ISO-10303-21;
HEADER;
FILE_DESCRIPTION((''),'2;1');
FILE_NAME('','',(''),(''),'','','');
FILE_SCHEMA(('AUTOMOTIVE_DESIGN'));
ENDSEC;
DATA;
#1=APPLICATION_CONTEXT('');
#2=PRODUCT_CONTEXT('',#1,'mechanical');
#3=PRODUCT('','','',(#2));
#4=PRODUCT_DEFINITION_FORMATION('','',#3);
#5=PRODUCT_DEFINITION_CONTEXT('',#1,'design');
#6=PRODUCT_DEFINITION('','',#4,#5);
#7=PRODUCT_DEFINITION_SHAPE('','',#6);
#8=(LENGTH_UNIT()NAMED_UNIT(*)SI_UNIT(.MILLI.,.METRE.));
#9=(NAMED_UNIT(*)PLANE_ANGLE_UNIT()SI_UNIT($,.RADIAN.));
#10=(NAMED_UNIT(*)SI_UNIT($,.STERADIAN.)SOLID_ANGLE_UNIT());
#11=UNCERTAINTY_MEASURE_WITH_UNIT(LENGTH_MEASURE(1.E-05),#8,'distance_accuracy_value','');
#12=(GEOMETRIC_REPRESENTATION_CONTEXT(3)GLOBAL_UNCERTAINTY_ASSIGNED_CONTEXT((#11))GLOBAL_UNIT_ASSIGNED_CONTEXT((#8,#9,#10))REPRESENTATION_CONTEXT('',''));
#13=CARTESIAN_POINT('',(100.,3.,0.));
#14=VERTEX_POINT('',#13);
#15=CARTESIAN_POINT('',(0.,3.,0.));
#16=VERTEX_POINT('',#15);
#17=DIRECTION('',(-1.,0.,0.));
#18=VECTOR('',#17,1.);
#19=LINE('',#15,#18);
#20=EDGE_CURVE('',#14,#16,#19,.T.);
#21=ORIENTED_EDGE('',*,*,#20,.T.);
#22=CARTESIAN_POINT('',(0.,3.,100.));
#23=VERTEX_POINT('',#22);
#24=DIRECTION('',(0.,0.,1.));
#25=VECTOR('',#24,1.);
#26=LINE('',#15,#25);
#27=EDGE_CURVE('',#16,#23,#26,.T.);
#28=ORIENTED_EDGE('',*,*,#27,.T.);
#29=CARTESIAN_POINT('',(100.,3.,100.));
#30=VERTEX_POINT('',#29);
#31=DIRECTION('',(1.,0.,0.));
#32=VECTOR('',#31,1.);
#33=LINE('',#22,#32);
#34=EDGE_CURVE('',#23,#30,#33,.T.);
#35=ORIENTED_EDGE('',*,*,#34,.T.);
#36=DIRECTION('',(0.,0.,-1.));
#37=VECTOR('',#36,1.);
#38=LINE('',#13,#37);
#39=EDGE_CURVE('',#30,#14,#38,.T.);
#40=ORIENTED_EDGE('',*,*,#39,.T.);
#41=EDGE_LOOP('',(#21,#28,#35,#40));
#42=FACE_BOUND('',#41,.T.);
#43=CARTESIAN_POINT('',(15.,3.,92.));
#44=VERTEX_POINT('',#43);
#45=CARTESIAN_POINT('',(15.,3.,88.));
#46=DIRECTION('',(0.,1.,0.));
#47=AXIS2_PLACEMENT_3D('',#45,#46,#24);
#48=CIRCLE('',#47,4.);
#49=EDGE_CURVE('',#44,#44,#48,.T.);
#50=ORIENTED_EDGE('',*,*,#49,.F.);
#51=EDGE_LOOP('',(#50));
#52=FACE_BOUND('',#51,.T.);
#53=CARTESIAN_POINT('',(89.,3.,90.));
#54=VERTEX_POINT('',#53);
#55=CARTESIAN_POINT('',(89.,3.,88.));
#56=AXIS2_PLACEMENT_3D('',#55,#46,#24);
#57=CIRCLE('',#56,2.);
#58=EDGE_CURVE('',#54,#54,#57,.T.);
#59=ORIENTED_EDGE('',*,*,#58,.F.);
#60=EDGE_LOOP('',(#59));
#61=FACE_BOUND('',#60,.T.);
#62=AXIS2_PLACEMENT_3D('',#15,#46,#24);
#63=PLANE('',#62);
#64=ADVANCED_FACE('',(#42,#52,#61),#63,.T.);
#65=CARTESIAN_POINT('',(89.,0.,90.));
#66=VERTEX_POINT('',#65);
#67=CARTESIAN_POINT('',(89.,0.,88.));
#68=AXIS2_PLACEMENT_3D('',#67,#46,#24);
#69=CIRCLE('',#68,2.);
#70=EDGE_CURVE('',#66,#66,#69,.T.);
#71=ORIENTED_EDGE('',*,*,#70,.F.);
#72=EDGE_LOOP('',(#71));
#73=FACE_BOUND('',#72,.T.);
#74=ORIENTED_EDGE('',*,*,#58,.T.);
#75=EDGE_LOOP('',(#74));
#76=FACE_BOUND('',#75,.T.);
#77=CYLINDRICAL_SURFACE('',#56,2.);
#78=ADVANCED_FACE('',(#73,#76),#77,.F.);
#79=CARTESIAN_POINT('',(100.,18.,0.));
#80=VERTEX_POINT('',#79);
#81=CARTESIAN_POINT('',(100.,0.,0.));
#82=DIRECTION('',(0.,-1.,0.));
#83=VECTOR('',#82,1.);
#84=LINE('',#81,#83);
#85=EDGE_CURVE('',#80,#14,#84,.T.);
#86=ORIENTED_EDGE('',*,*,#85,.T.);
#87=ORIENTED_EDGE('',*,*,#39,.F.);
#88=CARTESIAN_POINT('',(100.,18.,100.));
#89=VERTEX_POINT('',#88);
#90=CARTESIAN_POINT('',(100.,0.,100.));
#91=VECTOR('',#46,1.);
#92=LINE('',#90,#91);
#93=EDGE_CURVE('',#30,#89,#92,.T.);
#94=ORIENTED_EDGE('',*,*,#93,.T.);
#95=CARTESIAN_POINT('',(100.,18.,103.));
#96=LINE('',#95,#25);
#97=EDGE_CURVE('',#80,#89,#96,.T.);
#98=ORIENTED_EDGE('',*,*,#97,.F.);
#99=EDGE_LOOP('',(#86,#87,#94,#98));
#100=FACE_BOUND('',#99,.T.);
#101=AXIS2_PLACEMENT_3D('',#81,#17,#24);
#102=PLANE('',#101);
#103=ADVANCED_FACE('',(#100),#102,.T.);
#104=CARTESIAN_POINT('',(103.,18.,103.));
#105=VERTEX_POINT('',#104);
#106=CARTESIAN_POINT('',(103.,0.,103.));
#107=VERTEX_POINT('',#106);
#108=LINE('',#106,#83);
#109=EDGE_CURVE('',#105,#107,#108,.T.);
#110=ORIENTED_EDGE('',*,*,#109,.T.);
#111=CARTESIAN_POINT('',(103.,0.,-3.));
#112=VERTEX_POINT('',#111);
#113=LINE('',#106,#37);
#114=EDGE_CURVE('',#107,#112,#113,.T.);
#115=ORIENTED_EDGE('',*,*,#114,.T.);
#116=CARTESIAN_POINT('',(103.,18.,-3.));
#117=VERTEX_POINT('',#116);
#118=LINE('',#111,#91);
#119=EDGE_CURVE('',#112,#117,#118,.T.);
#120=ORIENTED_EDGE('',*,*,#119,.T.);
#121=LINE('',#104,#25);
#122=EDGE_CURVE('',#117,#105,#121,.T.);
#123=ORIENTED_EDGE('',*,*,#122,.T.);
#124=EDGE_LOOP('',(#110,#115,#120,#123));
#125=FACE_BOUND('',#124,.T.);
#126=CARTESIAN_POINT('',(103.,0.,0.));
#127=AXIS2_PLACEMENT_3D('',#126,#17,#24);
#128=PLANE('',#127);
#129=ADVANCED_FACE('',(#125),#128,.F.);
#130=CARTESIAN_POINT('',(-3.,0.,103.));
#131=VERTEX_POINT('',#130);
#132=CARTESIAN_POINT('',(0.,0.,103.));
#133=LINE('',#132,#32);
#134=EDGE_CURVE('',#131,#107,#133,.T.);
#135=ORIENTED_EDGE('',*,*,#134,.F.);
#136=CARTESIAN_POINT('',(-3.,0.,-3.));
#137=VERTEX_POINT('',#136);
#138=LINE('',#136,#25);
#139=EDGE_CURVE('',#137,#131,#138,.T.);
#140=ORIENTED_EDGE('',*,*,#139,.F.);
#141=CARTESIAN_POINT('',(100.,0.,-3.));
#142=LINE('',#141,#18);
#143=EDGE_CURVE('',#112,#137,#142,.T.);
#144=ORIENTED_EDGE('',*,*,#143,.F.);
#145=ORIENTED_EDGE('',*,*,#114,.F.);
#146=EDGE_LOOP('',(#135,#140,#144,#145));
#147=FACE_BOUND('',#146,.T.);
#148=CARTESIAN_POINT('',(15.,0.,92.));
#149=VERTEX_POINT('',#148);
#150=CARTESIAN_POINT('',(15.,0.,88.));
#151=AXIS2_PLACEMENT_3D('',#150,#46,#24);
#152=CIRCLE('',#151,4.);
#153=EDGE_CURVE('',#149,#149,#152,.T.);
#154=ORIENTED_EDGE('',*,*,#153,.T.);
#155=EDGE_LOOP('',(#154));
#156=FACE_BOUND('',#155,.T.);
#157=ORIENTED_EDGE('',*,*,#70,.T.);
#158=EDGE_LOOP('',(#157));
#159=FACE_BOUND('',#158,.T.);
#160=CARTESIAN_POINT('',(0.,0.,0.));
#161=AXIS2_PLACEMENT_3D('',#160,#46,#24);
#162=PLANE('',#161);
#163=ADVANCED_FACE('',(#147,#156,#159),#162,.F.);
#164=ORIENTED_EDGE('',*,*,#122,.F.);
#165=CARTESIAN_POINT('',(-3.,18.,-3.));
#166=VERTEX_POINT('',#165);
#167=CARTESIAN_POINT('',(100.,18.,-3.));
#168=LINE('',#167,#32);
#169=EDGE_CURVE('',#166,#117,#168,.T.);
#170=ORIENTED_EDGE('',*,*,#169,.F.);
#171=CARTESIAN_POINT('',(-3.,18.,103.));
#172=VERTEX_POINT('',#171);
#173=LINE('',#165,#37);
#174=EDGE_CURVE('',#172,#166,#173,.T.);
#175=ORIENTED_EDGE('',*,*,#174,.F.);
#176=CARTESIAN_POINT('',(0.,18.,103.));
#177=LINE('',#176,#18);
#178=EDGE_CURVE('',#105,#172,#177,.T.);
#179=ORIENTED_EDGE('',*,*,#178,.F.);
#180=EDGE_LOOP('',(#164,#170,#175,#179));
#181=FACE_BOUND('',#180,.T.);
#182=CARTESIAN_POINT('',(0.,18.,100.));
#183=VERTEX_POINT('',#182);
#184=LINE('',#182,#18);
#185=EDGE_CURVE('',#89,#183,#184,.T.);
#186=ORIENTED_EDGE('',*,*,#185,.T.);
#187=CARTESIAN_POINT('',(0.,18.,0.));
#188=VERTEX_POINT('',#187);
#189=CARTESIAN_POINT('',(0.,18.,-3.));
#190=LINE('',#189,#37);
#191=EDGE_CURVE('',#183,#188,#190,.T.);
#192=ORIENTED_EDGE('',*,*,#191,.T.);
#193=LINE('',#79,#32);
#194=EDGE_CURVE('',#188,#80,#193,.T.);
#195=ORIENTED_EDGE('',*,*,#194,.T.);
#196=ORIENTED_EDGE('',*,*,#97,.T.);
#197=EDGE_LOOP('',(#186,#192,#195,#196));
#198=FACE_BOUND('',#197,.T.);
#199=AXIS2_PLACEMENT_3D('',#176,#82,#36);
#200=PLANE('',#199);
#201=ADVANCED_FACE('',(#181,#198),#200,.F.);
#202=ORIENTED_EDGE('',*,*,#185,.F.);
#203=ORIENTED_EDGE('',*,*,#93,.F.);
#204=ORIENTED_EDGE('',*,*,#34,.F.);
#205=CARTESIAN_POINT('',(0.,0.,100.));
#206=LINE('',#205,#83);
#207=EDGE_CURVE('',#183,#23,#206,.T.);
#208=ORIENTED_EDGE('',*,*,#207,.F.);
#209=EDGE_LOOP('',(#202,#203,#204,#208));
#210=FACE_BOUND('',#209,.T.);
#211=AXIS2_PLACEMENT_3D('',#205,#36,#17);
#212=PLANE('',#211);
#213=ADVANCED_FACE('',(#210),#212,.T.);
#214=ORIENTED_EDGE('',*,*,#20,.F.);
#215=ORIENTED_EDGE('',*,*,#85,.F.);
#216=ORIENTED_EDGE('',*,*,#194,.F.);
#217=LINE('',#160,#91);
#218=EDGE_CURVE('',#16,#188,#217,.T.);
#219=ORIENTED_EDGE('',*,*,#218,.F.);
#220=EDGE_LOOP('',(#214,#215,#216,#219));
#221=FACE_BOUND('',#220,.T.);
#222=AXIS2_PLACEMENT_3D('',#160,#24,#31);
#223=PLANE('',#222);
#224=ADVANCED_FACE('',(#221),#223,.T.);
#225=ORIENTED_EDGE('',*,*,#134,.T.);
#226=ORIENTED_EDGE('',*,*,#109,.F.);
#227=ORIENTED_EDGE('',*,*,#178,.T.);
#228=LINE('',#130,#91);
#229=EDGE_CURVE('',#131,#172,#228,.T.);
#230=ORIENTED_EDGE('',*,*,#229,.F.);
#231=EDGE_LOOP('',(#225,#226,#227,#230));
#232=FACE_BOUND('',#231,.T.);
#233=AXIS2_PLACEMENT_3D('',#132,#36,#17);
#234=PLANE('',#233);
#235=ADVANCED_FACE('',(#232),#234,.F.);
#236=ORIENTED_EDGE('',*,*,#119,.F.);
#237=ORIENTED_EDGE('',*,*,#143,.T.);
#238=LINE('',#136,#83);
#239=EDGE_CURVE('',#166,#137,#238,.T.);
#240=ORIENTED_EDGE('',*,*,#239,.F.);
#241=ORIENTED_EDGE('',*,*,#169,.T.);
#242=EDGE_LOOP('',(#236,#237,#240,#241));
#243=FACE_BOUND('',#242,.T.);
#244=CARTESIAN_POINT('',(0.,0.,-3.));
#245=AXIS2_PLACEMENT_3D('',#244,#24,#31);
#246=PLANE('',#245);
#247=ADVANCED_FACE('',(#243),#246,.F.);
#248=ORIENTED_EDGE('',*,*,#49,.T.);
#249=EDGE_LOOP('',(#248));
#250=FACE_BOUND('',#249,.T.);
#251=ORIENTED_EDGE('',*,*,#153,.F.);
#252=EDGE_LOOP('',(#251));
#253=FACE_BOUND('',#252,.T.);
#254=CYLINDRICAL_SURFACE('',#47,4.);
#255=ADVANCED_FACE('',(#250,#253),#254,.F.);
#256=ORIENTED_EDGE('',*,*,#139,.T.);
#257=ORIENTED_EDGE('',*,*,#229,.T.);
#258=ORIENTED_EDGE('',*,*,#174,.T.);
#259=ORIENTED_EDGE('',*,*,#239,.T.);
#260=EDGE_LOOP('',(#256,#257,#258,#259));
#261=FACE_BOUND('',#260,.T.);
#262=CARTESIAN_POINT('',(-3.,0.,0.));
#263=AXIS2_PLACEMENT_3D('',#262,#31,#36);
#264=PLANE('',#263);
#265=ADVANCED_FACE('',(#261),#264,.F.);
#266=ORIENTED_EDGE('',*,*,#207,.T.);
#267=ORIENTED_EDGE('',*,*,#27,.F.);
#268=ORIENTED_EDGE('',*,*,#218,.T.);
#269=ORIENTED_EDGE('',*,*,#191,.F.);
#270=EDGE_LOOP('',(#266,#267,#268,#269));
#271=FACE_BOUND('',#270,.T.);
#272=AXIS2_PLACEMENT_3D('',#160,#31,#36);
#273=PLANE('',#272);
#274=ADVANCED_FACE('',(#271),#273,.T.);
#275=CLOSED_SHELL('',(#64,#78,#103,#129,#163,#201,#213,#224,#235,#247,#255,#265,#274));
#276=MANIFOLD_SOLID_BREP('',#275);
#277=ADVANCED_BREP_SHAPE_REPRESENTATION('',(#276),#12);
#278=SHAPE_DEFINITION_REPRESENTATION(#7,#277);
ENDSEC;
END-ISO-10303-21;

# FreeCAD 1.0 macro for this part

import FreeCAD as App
import Part
import Sketcher

V = App.Vector

doc = App.newDocument("Part")
body = doc.addObject("PartDesign::Body", "Body")

# Sketch on XZ plane
sketch1 = doc.addObject("Sketcher::SketchObject", "Sketch")
body.addObject(sketch1)
sketch1.AttachmentSupport = (doc.XZ_Plane, [""])
sketch1.MapMode = "FlatFace"
sketch1.addGeometry([
    Part.LineSegment(V(0, 0, 0), V(0, 100, 0)),
    Part.LineSegment(V(0, 100, 0), V(100, 100, 0)),
    Part.LineSegment(V(100, 100, 0), V(100, 0, 0)),
    Part.LineSegment(V(100, 0, 0), V(0, 0, 0)),
], False)
sketch1.addConstraint([
    Sketcher.Constraint("Coincident", 0, 2, 1, 1),
    Sketcher.Constraint("Coincident", 1, 2, 2, 1),
    Sketcher.Constraint("Coincident", 2, 2, 3, 1),
    Sketcher.Constraint("Coincident", 3, 2, 0, 1),
    Sketcher.Constraint("Vertical", 0),
    Sketcher.Constraint("Horizontal", 1),
    Sketcher.Constraint("Vertical", 2),
    Sketcher.Constraint("Horizontal", 3),
    Sketcher.Constraint("Coincident", 3, 2, -1, 1),
    Sketcher.Constraint("Equal", 3, 0),
    Sketcher.Constraint("DistanceX", 1, 1, 1, 2, 100.0),
])
pad1 = doc.addObject("PartDesign::Pad", "Pad")
body.addObject(pad1)
pad1.Profile = sketch1
pad1.Length = 3
pad1.Reversed = True

# Sketch on XY plane
sketch2 = doc.addObject("Sketcher::SketchObject", "Sketch001")
body.addObject(sketch2)
sketch2.AttachmentSupport = (doc.XY_Plane, [""])
sketch2.MapMode = "FlatFace"
sketch2.AttachmentOffset = App.Placement(V(0, 0, 100), App.Rotation())
sketch2.addGeometry([
    Part.LineSegment(V(0, 18, 0), V(0, 0, 0)),
    Part.LineSegment(V(0, 0, 0), V(100, 0, 0)),
    Part.LineSegment(V(100, 0, 0), V(100, 18, 0)),
    Part.LineSegment(V(100, 18, 0), V(0, 18, 0)),
], False)
sketch2.addConstraint([
    Sketcher.Constraint("Coincident", 0, 2, 1, 1),
    Sketcher.Constraint("Coincident", 1, 2, 2, 1),
    Sketcher.Constraint("Coincident", 2, 2, 3, 1),
    Sketcher.Constraint("Coincident", 3, 2, 0, 1),
    Sketcher.Constraint("Vertical", 0),
    Sketcher.Constraint("Horizontal", 1),
    Sketcher.Constraint("Vertical", 2),
    Sketcher.Constraint("Horizontal", 3),
    Sketcher.Constraint("Coincident", 0, 2, -1, 1),
    Sketcher.Constraint("DistanceX", 1, 1, 1, 2, 100.0),
    Sketcher.Constraint("DistanceY", 0, 2, 0, 1, 18.0),
])
pad2 = doc.addObject("PartDesign::Pad", "Pad001")
body.addObject(pad2)
pad2.Profile = sketch2
pad2.Length = 3

# Sketch on XY plane
sketch3 = doc.addObject("Sketcher::SketchObject", "Sketch002")
body.addObject(sketch3)
sketch3.AttachmentSupport = (doc.XY_Plane, [""])
sketch3.MapMode = "FlatFace"
sketch3.addGeometry([
    Part.LineSegment(V(100, 18, 0), V(100, 0, 0)),
    Part.LineSegment(V(100, 0, 0), V(0, 0, 0)),
    Part.LineSegment(V(0, 0, 0), V(0, 18, 0)),
    Part.LineSegment(V(0, 18, 0), V(100, 18, 0)),
], False)
sketch3.addConstraint([
    Sketcher.Constraint("Coincident", 0, 2, 1, 1),
    Sketcher.Constraint("Coincident", 1, 2, 2, 1),
    Sketcher.Constraint("Coincident", 2, 2, 3, 1),
    Sketcher.Constraint("Coincident", 3, 2, 0, 1),
    Sketcher.Constraint("Vertical", 0),
    Sketcher.Constraint("Horizontal", 1),
    Sketcher.Constraint("Vertical", 2),
    Sketcher.Constraint("Horizontal", 3),
    Sketcher.Constraint("Coincident", 1, 2, -1, 1),
    Sketcher.Constraint("DistanceX", 1, 2, 1, 1, 100.0),
    Sketcher.Constraint("DistanceY", 0, 2, 0, 1, 18.0),
])
pad3 = doc.addObject("PartDesign::Pad", "Pad002")
body.addObject(pad3)
pad3.Profile = sketch3
pad3.Length = 3
pad3.Reversed = True

# Sketch on YZ plane
sketch4 = doc.addObject("Sketcher::SketchObject", "Sketch003")
body.addObject(sketch4)
sketch4.AttachmentSupport = (doc.YZ_Plane, [""])
sketch4.MapMode = "FlatFace"
sketch4.addGeometry([
    Part.LineSegment(V(18, -3, 0), V(0, -3, 0)),
    Part.LineSegment(V(0, -3, 0), V(0, 103, 0)),
    Part.LineSegment(V(0, 103, 0), V(18, 103, 0)),
    Part.LineSegment(V(18, 103, 0), V(18, -3, 0)),
], False)
sketch4.addConstraint([
    Sketcher.Constraint("Coincident", 0, 2, 1, 1),
    Sketcher.Constraint("Coincident", 1, 2, 2, 1),
    Sketcher.Constraint("Coincident", 2, 2, 3, 1),
    Sketcher.Constraint("Coincident", 3, 2, 0, 1),
    Sketcher.Constraint("Horizontal", 0),
    Sketcher.Constraint("Vertical", 1),
    Sketcher.Constraint("Horizontal", 2),
    Sketcher.Constraint("Vertical", 3),
    Sketcher.Constraint("PointOnObject", 0, 2, -2),
    Sketcher.Constraint("DistanceX", 0, 2, 0, 1, 18.0),
    Sketcher.Constraint("DistanceY", 1, 1, 1, 2, 106.0),
    Sketcher.Constraint("DistanceY", 0, 2, -1, 1, 3.0),
])
pad4 = doc.addObject("PartDesign::Pad", "Pad003")
body.addObject(pad4)
pad4.Profile = sketch4
pad4.Length = 3
pad4.Reversed = True

# Sketch on YZ plane
sketch5 = doc.addObject("Sketcher::SketchObject", "Sketch004")
body.addObject(sketch5)
sketch5.AttachmentSupport = (doc.YZ_Plane, [""])
sketch5.MapMode = "FlatFace"
sketch5.AttachmentOffset = App.Placement(V(0, 0, 100), App.Rotation())
sketch5.addGeometry([
    Part.LineSegment(V(18, 103, 0), V(0, 103, 0)),
    Part.LineSegment(V(0, 103, 0), V(0, -3, 0)),
    Part.LineSegment(V(0, -3, 0), V(18, -3, 0)),
    Part.LineSegment(V(18, -3, 0), V(18, 103, 0)),
], False)
sketch5.addConstraint([
    Sketcher.Constraint("Coincident", 0, 2, 1, 1),
    Sketcher.Constraint("Coincident", 1, 2, 2, 1),
    Sketcher.Constraint("Coincident", 2, 2, 3, 1),
    Sketcher.Constraint("Coincident", 3, 2, 0, 1),
    Sketcher.Constraint("Horizontal", 0),
    Sketcher.Constraint("Vertical", 1),
    Sketcher.Constraint("Horizontal", 2),
    Sketcher.Constraint("Vertical", 3),
    Sketcher.Constraint("PointOnObject", 0, 2, -2),
    Sketcher.Constraint("DistanceX", 0, 2, 0, 1, 18.0),
    Sketcher.Constraint("DistanceY", 1, 2, 1, 1, 106.0),
    Sketcher.Constraint("DistanceY", -1, 1, 0, 2, 103.0),
])
pad5 = doc.addObject("PartDesign::Pad", "Pad004")
body.addObject(pad5)
pad5.Profile = sketch5
pad5.Length = 3

# Sketch on XZ plane
sketch6 = doc.addObject("Sketcher::SketchObject", "Sketch005")
body.addObject(sketch6)
sketch6.AttachmentSupport = (doc.XZ_Plane, [""])
sketch6.MapMode = "FlatFace"
sketch6.AttachmentOffset = App.Placement(V(0, 0, -3), App.Rotation())
sketch6.addGeometry(Part.Circle(V(15, 88, 0), V(0, 0, 1), 4), False)
sketch6.addConstraint([
    Sketcher.Constraint("Diameter", 0, 8.0),
    Sketcher.Constraint("DistanceX", -1, 1, 0, 3, 15.0),
    Sketcher.Constraint("DistanceY", -1, 1, 0, 3, 88.0),
])
doc.recompute()
hole = doc.addObject("PartDesign::Hole", "Hole")
body.addObject(hole)
hole.Profile = sketch6
hole.ThreadType = "None"
hole.Diameter = 8
hole.DepthType = "ThroughAll"
hole.Reversed = True

# Sketch on XZ plane
sketch7 = doc.addObject("Sketcher::SketchObject", "Sketch006")
body.addObject(sketch7)
sketch7.AttachmentSupport = (doc.XZ_Plane, [""])
sketch7.MapMode = "FlatFace"
sketch7.AttachmentOffset = App.Placement(V(0, 0, -3), App.Rotation())
sketch7.addGeometry(Part.Circle(V(89, 88, 0), V(0, 0, 1), 2), False)
sketch7.addConstraint([
    Sketcher.Constraint("Diameter", 0, 4.0),
    Sketcher.Constraint("DistanceX", -1, 1, 0, 3, 89.0),
    Sketcher.Constraint("DistanceY", -1, 1, 0, 3, 88.0),
])
doc.recompute()
hole2 = doc.addObject("PartDesign::Hole", "Hole001")
body.addObject(hole2)
hole2.Profile = sketch7
hole2.ThreadType = "None"
hole2.Diameter = 4
hole2.DepthType = "ThroughAll"
hole2.Reversed = True

doc.recompute()
